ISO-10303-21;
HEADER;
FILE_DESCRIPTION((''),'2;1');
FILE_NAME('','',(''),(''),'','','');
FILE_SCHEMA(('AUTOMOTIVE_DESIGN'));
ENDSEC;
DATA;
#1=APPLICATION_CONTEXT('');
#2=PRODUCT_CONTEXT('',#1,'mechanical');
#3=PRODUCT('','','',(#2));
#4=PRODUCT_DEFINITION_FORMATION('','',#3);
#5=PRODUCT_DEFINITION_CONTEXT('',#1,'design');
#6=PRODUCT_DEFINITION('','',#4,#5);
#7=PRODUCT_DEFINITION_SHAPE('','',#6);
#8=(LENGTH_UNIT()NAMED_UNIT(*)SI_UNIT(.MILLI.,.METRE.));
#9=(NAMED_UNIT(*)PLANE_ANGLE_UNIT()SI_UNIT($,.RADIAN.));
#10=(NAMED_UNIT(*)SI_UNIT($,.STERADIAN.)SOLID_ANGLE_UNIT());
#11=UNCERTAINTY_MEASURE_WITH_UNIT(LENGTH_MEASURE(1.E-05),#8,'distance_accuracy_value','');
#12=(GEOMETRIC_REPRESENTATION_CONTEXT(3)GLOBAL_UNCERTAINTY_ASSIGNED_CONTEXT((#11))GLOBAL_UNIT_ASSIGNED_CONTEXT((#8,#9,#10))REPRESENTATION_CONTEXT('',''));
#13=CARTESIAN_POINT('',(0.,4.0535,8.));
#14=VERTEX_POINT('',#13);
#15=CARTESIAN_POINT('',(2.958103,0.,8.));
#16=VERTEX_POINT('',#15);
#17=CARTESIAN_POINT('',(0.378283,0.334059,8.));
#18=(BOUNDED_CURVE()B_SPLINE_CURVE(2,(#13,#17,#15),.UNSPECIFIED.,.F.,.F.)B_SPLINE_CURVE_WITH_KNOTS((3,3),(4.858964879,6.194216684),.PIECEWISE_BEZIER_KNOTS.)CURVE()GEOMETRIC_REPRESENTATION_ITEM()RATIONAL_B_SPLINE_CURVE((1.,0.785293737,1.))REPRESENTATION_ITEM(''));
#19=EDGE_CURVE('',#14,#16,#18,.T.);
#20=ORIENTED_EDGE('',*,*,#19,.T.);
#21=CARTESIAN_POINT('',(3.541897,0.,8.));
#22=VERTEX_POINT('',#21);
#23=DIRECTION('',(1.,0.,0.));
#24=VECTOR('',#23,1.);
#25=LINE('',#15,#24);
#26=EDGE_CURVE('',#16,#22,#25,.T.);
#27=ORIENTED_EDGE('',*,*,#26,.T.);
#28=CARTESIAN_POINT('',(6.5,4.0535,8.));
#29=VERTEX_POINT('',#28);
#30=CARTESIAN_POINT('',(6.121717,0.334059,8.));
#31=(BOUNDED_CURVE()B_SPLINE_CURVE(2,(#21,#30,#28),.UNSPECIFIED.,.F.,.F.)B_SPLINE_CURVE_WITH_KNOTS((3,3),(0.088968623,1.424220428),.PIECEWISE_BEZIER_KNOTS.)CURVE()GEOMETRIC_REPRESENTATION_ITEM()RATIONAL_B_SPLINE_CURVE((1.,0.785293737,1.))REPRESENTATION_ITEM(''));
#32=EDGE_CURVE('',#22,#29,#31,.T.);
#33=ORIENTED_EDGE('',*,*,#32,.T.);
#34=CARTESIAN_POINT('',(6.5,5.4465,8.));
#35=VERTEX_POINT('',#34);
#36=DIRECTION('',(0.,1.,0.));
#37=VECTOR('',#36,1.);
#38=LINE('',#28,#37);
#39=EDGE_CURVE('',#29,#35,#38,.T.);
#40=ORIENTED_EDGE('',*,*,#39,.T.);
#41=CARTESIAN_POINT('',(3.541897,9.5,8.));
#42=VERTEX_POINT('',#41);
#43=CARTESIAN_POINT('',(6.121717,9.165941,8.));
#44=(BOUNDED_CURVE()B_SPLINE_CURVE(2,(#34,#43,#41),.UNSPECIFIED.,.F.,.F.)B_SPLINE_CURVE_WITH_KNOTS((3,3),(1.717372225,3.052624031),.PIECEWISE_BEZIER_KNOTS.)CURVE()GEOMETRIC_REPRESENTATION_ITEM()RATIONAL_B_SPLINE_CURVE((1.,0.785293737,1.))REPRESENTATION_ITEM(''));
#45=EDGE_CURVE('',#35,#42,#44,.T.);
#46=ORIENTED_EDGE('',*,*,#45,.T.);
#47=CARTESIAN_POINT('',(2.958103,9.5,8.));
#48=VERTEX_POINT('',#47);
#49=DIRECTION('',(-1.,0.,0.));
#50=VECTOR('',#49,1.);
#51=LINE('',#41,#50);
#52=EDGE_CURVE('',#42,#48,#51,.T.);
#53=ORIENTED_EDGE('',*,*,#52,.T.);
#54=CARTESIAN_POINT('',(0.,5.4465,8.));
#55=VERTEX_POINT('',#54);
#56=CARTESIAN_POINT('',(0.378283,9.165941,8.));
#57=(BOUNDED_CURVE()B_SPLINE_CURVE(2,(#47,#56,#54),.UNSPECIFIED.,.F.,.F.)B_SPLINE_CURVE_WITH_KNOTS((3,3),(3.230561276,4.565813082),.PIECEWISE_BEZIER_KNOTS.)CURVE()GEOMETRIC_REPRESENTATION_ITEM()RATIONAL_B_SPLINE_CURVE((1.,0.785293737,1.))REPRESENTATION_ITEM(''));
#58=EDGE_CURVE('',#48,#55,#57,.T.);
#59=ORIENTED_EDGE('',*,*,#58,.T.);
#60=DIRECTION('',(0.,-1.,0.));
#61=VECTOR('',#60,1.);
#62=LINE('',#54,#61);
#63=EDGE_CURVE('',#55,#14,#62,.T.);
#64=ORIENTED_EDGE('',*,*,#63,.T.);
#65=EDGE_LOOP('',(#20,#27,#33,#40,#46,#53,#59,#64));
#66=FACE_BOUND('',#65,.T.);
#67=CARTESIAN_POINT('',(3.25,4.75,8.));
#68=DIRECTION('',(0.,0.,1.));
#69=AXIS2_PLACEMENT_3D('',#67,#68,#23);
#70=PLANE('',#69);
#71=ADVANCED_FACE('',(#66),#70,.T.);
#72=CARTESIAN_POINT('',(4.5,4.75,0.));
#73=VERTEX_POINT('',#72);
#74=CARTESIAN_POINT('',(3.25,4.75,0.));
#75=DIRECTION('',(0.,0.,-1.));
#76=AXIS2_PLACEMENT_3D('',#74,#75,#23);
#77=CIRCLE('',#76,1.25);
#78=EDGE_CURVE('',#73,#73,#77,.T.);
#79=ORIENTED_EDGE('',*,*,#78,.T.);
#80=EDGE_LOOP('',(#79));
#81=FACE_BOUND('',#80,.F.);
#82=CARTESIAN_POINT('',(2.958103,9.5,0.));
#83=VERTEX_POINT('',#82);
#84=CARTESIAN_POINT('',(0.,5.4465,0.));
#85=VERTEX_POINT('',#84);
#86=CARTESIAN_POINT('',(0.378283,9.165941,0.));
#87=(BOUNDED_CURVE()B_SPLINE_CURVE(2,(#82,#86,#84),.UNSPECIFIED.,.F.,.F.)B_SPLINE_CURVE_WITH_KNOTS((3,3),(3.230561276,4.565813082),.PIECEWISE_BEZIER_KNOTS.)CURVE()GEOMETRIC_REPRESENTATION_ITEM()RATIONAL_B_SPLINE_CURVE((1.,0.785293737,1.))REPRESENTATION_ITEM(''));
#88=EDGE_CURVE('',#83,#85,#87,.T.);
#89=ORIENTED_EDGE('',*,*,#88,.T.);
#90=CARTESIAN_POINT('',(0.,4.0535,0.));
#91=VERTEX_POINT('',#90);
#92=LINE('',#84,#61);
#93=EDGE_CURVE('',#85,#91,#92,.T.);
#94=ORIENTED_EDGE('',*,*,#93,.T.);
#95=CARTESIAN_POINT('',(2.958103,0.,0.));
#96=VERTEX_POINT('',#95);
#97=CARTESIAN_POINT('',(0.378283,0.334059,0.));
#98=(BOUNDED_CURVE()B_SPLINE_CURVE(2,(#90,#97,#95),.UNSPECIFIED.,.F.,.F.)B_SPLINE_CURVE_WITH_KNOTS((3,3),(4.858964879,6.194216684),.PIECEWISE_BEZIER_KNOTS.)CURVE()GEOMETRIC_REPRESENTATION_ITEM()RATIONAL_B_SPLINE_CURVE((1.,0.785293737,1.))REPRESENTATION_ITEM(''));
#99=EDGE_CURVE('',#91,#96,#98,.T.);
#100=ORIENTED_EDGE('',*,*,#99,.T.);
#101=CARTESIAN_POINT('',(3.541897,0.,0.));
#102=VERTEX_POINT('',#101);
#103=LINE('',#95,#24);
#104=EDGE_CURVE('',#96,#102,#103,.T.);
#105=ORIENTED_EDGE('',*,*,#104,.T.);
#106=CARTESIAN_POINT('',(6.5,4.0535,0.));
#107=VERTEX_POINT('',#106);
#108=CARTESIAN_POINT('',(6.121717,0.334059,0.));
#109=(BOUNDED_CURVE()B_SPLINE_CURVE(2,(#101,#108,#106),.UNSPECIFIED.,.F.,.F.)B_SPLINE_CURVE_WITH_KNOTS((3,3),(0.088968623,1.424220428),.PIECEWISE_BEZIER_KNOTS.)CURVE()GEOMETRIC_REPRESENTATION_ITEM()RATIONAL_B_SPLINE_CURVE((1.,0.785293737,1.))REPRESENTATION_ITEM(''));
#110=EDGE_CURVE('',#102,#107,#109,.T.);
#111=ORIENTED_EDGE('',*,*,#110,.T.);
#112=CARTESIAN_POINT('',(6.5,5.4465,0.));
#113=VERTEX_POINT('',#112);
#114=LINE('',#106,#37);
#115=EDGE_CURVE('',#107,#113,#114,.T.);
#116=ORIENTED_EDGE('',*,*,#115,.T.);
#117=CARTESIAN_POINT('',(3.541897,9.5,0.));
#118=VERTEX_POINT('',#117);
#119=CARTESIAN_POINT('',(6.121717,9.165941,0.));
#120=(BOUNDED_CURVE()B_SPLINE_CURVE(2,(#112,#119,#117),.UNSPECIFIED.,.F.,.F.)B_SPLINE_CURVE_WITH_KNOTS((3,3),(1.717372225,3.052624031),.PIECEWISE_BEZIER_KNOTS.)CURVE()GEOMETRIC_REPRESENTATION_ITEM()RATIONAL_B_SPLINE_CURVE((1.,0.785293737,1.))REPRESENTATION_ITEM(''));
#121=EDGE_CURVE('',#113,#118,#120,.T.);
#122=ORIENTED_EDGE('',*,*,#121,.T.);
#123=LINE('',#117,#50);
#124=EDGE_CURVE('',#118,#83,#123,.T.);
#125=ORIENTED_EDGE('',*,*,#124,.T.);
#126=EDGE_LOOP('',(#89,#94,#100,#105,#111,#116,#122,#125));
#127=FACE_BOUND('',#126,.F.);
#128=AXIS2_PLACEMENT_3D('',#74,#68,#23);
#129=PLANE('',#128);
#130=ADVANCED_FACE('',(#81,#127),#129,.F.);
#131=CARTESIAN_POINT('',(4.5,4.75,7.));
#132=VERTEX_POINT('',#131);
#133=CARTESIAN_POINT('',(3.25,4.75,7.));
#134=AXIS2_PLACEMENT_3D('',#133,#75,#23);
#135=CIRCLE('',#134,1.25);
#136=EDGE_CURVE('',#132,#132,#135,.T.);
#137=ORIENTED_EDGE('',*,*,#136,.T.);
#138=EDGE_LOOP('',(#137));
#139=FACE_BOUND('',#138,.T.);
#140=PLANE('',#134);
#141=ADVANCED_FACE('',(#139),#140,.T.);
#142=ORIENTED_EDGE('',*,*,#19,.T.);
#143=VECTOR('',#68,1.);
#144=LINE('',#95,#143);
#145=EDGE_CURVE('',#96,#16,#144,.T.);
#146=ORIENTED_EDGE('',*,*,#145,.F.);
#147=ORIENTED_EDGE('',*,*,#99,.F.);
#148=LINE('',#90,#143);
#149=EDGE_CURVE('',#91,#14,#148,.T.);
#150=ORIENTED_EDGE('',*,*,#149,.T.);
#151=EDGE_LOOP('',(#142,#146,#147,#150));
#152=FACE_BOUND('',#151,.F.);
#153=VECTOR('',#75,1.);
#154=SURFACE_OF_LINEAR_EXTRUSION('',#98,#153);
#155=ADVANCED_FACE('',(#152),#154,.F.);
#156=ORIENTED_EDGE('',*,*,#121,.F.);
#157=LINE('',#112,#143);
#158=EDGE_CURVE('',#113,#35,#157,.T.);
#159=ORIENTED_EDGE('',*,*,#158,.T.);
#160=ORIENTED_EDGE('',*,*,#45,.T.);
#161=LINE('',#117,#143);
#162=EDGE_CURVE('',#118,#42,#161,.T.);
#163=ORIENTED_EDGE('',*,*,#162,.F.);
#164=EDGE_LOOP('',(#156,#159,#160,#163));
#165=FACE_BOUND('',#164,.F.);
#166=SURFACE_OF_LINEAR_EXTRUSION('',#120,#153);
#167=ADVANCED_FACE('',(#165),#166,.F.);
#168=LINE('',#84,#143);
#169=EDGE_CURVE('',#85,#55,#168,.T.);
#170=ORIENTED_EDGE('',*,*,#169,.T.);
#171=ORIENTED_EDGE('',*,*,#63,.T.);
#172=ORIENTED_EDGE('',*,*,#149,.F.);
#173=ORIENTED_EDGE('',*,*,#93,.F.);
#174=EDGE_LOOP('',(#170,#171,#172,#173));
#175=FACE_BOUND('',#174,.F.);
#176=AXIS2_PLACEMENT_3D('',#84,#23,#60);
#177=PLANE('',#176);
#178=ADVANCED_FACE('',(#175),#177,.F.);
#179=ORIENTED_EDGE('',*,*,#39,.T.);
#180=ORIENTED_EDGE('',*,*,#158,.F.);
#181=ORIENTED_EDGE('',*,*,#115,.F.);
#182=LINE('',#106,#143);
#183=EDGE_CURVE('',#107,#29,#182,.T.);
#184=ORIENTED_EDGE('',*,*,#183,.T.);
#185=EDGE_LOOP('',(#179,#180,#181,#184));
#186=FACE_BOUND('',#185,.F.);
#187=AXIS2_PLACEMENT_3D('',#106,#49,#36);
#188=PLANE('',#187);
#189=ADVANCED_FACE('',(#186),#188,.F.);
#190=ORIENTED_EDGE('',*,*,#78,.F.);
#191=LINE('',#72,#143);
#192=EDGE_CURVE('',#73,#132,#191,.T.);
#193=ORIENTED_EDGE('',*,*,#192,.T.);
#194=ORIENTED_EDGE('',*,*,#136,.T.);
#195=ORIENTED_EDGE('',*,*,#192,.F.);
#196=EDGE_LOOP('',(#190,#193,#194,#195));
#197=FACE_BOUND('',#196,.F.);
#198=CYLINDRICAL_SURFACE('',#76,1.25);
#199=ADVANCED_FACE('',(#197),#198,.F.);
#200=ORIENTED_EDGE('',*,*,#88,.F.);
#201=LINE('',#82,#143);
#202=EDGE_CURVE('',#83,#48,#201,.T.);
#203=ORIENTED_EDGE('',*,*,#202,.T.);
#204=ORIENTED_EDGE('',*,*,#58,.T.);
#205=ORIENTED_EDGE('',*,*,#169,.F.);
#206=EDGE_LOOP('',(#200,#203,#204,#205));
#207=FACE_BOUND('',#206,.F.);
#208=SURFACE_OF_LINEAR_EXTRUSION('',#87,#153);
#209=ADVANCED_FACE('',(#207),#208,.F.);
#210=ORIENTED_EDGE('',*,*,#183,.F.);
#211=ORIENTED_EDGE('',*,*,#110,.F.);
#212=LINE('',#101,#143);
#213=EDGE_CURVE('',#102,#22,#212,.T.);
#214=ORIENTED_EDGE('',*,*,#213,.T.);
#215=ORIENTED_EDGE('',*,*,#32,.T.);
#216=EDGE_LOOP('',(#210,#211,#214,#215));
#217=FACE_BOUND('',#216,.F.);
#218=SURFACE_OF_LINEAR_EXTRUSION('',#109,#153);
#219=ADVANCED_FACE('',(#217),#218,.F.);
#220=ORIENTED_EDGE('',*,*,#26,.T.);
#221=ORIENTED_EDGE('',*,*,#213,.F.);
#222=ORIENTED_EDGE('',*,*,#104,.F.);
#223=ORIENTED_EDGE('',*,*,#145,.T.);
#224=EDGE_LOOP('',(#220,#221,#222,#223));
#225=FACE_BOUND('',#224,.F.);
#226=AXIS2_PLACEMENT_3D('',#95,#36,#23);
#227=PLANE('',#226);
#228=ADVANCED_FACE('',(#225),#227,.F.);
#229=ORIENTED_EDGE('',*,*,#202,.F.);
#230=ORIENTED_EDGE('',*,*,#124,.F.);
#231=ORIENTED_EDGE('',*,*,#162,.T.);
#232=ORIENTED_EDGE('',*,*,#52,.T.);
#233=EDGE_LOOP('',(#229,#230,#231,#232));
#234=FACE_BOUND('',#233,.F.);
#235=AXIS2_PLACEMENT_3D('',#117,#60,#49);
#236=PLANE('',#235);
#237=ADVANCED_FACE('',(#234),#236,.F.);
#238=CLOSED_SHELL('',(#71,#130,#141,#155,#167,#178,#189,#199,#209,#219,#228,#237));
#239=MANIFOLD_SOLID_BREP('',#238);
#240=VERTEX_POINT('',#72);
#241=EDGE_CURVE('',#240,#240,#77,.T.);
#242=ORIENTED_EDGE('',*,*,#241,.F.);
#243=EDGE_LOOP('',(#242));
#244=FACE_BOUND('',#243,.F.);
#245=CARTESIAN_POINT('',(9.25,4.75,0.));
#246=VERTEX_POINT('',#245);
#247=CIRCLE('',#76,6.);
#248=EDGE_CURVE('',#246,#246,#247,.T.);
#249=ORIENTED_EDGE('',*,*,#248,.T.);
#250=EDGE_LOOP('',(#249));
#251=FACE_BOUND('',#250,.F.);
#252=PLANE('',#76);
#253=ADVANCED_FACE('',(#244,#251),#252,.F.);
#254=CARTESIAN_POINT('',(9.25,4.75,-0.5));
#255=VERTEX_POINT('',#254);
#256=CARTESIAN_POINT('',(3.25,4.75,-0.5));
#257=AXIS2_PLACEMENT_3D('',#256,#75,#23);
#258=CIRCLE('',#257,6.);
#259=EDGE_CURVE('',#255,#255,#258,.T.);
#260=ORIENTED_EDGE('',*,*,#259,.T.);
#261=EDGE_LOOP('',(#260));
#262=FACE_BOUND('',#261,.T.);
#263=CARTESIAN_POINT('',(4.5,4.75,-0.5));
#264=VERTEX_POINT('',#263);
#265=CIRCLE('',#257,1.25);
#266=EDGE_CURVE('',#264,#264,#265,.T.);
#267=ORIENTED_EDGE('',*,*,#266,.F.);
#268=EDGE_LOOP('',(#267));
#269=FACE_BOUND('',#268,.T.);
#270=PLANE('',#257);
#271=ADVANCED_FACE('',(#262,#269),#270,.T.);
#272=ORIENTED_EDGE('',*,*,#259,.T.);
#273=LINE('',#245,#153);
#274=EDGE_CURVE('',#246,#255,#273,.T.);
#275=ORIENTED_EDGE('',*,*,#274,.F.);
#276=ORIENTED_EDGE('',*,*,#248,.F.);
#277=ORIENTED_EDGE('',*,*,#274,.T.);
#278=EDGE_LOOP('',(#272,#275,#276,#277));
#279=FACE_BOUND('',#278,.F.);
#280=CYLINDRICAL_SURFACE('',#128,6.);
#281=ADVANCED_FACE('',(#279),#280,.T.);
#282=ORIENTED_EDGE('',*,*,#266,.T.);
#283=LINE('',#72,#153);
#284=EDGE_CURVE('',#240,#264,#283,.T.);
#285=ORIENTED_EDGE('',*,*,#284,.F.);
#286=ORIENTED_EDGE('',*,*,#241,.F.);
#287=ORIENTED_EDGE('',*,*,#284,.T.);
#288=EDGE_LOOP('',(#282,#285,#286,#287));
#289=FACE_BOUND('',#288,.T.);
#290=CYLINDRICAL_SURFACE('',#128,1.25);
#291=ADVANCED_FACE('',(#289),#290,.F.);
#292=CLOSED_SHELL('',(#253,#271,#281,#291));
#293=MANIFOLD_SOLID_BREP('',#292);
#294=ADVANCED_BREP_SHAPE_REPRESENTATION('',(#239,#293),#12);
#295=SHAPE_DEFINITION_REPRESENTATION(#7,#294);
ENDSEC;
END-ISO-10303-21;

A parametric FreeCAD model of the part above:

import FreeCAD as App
import Part
import Sketcher

V = App.Vector
Q = App.Units.Quantity

doc = App.newDocument("Part")
body = doc.addObject("PartDesign::Body", "Body")

# Sketch on XY plane
sketch1 = doc.addObject("Sketcher::SketchObject", "Sketch")
body.addObject(sketch1)
sketch1.AttachmentSupport = (doc.XY_Plane, [""])
sketch1.MapMode = "FlatFace"
sketch1.addGeometry([
    Part.BSplineCurve([V(0, 4.0535, 0), V(0.378283, 0.334059, 0), V(2.958103, 0, 0)], [3, 3], [4.858964879, 6.194216684], False, 2, [1, 0.785293737, 1], False),  # 0
    Part.LineSegment(V(2.958103, 0, 0), V(3.541897, 0, 0)),  # 1
    Part.BSplineCurve([V(3.541897, 0, 0), V(6.121717, 0.334059, 0), V(6.5, 4.0535, 0)], [3, 3], [0.088968623, 1.424220428], False, 2, [1, 0.785293737, 1], False),  # 2
    Part.LineSegment(V(6.5, 4.0535, 0), V(6.5, 5.4465, 0)),  # 3
    Part.BSplineCurve([V(6.5, 5.4465, 0), V(6.121717, 9.165941, 0), V(3.541897, 9.5, 0)], [3, 3], [1.717372225, 3.052624031], False, 2, [1, 0.785293737, 1], False),  # 4
    Part.LineSegment(V(3.541897, 9.5, 0), V(2.958103, 9.5, 0)),  # 5
    Part.BSplineCurve([V(2.958103, 9.5, 0), V(0.378283, 9.165941, 0), V(0, 5.4465, 0)], [3, 3], [3.230561276, 4.565813082], False, 2, [1, 0.785293737, 1], False),  # 6
    Part.LineSegment(V(0, 5.4465, 0), V(0, 4.0535, 0)),  # 7
], False)
sketch1.addConstraint([
    Sketcher.Constraint("Block", 0),
    Sketcher.Constraint("Block", 2),
    Sketcher.Constraint("Block", 4),
    Sketcher.Constraint("Block", 6),
    Sketcher.Constraint("Coincident", 0, 2, 1, 1),
    Sketcher.Constraint("Coincident", 1, 2, 2, 1),
    Sketcher.Constraint("Coincident", 2, 2, 3, 1),
    Sketcher.Constraint("Coincident", 3, 2, 4, 1),
    Sketcher.Constraint("Coincident", 4, 2, 5, 1),
    Sketcher.Constraint("Coincident", 5, 2, 6, 1),
    Sketcher.Constraint("Coincident", 6, 2, 7, 1),
    Sketcher.Constraint("Coincident", 7, 2, 0, 1),
])
pad1 = doc.addObject("PartDesign::Pad", "Pad")
body.addObject(pad1)
pad1.Profile = sketch1
pad1.Length = 8

# Sketch on XY plane
sketch2 = doc.addObject("Sketcher::SketchObject", "Sketch001")
body.addObject(sketch2)
sketch2.AttachmentSupport = (doc.XY_Plane, [""])
sketch2.MapMode = "FlatFace"
sketch2.addGeometry(Part.Circle(V(3.2, 4.8, 0), V(0, 0, 1), 1.2), False)
sketch2.addConstraint([
    Sketcher.Constraint("Diameter", 0, Q("2.5 mm")),
    Sketcher.Constraint("DistanceX", -1, 1, 0, 3, Q("3.25 mm")),
    Sketcher.Constraint("DistanceY", -1, 1, 0, 3, Q("4.75 mm")),
])
pocket1 = doc.addObject("PartDesign::Pocket", "Pocket")
body.addObject(pocket1)
pocket1.Profile = sketch2
pocket1.Length = 7
pocket1.Reversed = True
body2 = doc.addObject("PartDesign::Body", "Body001")

# Sketch on XY plane
sketch3 = doc.addObject("Sketcher::SketchObject", "Sketch002")
body2.addObject(sketch3)
sketch3.AttachmentSupport = (doc.getObject("XY_Plane001"), [""])
sketch3.MapMode = "FlatFace"
sketch3.addGeometry([
    Part.Circle(V(3.2, 4.8, 0), V(0, 0, 1), 6),
    Part.Circle(V(3.2, 4.8, 0), V(0, 0, 1), 1.2),
], False)
sketch3.addConstraint([
    Sketcher.Constraint("Coincident", 1, 3, 0, 3),
    Sketcher.Constraint("Diameter", 0, Q("12 mm")),
    Sketcher.Constraint("Diameter", 1, Q("2.5 mm")),
    Sketcher.Constraint("DistanceX", -1, 1, 0, 3, Q("3.25 mm")),
    Sketcher.Constraint("DistanceY", -1, 1, 0, 3, Q("4.75 mm")),
])
pad2 = doc.addObject("PartDesign::Pad", "Pad001")
body2.addObject(pad2)
pad2.Profile = sketch3
pad2.Length = 0.5
pad2.Reversed = True

doc.recompute()
